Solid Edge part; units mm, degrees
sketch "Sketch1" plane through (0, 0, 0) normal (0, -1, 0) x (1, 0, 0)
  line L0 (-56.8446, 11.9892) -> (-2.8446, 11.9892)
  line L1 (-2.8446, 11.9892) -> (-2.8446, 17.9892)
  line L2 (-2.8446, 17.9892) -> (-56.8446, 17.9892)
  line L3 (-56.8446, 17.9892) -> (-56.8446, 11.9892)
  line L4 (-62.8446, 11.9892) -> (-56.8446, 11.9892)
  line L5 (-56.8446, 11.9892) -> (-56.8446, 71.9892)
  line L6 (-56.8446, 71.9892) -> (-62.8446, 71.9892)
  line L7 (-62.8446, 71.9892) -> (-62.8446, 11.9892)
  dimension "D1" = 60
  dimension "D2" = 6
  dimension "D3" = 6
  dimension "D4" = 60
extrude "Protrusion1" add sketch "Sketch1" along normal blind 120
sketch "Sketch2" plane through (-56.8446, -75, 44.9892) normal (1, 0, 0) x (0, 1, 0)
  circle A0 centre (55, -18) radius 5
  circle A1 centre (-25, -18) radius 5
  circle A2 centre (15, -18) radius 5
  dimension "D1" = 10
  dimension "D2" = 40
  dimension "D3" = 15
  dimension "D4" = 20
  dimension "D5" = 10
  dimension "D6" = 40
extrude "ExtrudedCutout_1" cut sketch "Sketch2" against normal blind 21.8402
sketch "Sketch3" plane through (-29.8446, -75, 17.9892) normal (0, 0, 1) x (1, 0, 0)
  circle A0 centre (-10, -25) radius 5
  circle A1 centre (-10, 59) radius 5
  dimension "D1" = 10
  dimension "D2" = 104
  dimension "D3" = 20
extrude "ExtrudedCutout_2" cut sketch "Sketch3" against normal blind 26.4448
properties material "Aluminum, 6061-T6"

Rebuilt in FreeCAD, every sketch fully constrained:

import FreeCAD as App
import Part
import Sketcher
from FreeCAD import Vector
Q = App.Units.Quantity


def add_polygon(sketch, points):
    """Adds a closed chain of lines whose ends are joined by coincident constraints."""
    first, n = sketch.GeometryCount, len(points)
    for a, b in zip(points, points[1:] + points[:1]):
        sketch.addGeometry(Part.LineSegment(App.Vector(*a, 0), App.Vector(*b, 0)), False)
    for i in range(n):
        sketch.addConstraint(Sketcher.Constraint("Coincident", first + i, 2, first + (i + 1) % n, 1))

doc = App.newDocument("Part")
params = doc.addObject("Spreadsheet::Sheet", "Params")
for row, (alias, value) in enumerate([
    ("sketch1_width", "54 mm"),
    ("sketch1_width2", "6 mm"),
    ("pad1_length", "120 mm"),
    ("sketch2_diameter", "10 mm"),
    ("pocket1_length", "21.8402 mm"),
    ("sketch3_diameter", "10 mm"),
    ("pocket2_length", "26.4448 mm"),
], start=1):
    params.set(f"A{row}", alias)
    params.set(f"B{row}", "=" + value)
    params.setAlias(f"B{row}", alias)

body = doc.addObject("PartDesign::Body", "Body")

# Sketch on XZ plane
sketch1 = body.newObject("Sketcher::SketchObject", "Sketch")
sketch1.AttachmentSupport = (doc.getObject("XZ_Plane"), [""])
sketch1.MapMode = "FlatFace"
add_polygon(sketch1, [(-3, 18), (-57, 18), (-57, 72), (-63, 72), (-63, 12), (-3, 12)])  # lines 0-5
sketch1.addConstraint([
    Sketcher.Constraint("Horizontal", 0),
    Sketcher.Constraint("Vertical", 1),
    Sketcher.Constraint("Horizontal", 2),
    Sketcher.Constraint("Vertical", 3),
    Sketcher.Constraint("Horizontal", 4),
    Sketcher.Constraint("Vertical", 5),
    Sketcher.Constraint("Equal", 0, 1),
    Sketcher.Constraint("Equal", 4, 3),
    Sketcher.Constraint("DistanceX", 0, 2, 0, 1, Q("54 mm")),
    Sketcher.Constraint("DistanceX", 2, 2, 2, 1, Q("6 mm")),
    Sketcher.Constraint("DistanceX", 0, 2, -1, 1, Q("56.8446 mm")),
    Sketcher.Constraint("DistanceY", -1, 1, 0, 2, Q("17.9892 mm")),
])
sketch1.setExpression("Constraints[14]", "Params.sketch1_width")
sketch1.setExpression("Constraints[15]", "Params.sketch1_width2")
pad1 = body.newObject("PartDesign::Pad", "Pad")
pad1.Profile = sketch1
pad1.setExpression("Length", "Params.pad1_length")

# Sketch on YZ plane
sketch2 = body.newObject("Sketcher::SketchObject", "Sketch001")
sketch2.AttachmentSupport = (doc.getObject("YZ_Plane"), [""])
sketch2.MapMode = "FlatFace"
sketch2.AttachmentOffset = App.Placement(Vector(0, 0, -56.8446), App.Rotation())
sketch2.addGeometry([
    Part.Circle(Vector(-20, 27, 0), Vector(0, 0, 1), 5),
    Part.Circle(Vector(-100, 27, 0), Vector(0, 0, 1), 5),
    Part.Circle(Vector(-60, 27, 0), Vector(0, 0, 1), 5),
], False)
sketch2.addConstraint([
    Sketcher.Constraint("Equal", 0, 1),
    Sketcher.Constraint("Equal", 1, 2),
    Sketcher.Constraint("Horizontal", 0, 3, 1, 3),
    Sketcher.Constraint("Horizontal", 1, 3, 2, 3),
    Sketcher.Constraint("Diameter", 0, Q("10 mm")),
    Sketcher.Constraint("DistanceX", 0, 3, -1, 1, Q("20 mm")),
    Sketcher.Constraint("DistanceX", 1, 3, -1, 1, Q("100 mm")),
    Sketcher.Constraint("DistanceX", 2, 3, -1, 1, Q("60 mm")),
    Sketcher.Constraint("DistanceY", -1, 1, 0, 3, Q("26.9892 mm")),
])
sketch2.setExpression("Constraints[4]", "Params.sketch2_diameter")
pocket1 = body.newObject("PartDesign::Pocket", "Pocket")
pocket1.Profile = sketch2
pocket1.setExpression("Length", "Params.pocket1_length")

# Sketch on XY plane
sketch3 = body.newObject("Sketcher::SketchObject", "Sketch002")
sketch3.AttachmentSupport = (doc.getObject("XY_Plane"), [""])
sketch3.MapMode = "FlatFace"
sketch3.AttachmentOffset = App.Placement(Vector(0, 0, 17.9892), App.Rotation())
sketch3.addGeometry([
    Part.Circle(Vector(-40, -100, 0), Vector(0, 0, 1), 5),
    Part.Circle(Vector(-40, -16, 0), Vector(0, 0, 1), 5),
], False)
sketch3.addConstraint([
    Sketcher.Constraint("Equal", 0, 1),
    Sketcher.Constraint("Vertical", 0, 3, 1, 3),
    Sketcher.Constraint("Diameter", 0, Q("10 mm")),
    Sketcher.Constraint("DistanceY", 0, 3, -1, 1, Q("100 mm")),
    Sketcher.Constraint("DistanceY", 1, 3, -1, 1, Q("16 mm")),
    Sketcher.Constraint("DistanceX", 0, 3, -1, 1, Q("39.8446 mm")),
])
sketch3.setExpression("Constraints[2]", "Params.sketch3_diameter")
pocket2 = body.newObject("PartDesign::Pocket", "Pocket001")
pocket2.Profile = sketch3
pocket2.setExpression("Length", "Params.pocket2_length")

doc.recompute()
